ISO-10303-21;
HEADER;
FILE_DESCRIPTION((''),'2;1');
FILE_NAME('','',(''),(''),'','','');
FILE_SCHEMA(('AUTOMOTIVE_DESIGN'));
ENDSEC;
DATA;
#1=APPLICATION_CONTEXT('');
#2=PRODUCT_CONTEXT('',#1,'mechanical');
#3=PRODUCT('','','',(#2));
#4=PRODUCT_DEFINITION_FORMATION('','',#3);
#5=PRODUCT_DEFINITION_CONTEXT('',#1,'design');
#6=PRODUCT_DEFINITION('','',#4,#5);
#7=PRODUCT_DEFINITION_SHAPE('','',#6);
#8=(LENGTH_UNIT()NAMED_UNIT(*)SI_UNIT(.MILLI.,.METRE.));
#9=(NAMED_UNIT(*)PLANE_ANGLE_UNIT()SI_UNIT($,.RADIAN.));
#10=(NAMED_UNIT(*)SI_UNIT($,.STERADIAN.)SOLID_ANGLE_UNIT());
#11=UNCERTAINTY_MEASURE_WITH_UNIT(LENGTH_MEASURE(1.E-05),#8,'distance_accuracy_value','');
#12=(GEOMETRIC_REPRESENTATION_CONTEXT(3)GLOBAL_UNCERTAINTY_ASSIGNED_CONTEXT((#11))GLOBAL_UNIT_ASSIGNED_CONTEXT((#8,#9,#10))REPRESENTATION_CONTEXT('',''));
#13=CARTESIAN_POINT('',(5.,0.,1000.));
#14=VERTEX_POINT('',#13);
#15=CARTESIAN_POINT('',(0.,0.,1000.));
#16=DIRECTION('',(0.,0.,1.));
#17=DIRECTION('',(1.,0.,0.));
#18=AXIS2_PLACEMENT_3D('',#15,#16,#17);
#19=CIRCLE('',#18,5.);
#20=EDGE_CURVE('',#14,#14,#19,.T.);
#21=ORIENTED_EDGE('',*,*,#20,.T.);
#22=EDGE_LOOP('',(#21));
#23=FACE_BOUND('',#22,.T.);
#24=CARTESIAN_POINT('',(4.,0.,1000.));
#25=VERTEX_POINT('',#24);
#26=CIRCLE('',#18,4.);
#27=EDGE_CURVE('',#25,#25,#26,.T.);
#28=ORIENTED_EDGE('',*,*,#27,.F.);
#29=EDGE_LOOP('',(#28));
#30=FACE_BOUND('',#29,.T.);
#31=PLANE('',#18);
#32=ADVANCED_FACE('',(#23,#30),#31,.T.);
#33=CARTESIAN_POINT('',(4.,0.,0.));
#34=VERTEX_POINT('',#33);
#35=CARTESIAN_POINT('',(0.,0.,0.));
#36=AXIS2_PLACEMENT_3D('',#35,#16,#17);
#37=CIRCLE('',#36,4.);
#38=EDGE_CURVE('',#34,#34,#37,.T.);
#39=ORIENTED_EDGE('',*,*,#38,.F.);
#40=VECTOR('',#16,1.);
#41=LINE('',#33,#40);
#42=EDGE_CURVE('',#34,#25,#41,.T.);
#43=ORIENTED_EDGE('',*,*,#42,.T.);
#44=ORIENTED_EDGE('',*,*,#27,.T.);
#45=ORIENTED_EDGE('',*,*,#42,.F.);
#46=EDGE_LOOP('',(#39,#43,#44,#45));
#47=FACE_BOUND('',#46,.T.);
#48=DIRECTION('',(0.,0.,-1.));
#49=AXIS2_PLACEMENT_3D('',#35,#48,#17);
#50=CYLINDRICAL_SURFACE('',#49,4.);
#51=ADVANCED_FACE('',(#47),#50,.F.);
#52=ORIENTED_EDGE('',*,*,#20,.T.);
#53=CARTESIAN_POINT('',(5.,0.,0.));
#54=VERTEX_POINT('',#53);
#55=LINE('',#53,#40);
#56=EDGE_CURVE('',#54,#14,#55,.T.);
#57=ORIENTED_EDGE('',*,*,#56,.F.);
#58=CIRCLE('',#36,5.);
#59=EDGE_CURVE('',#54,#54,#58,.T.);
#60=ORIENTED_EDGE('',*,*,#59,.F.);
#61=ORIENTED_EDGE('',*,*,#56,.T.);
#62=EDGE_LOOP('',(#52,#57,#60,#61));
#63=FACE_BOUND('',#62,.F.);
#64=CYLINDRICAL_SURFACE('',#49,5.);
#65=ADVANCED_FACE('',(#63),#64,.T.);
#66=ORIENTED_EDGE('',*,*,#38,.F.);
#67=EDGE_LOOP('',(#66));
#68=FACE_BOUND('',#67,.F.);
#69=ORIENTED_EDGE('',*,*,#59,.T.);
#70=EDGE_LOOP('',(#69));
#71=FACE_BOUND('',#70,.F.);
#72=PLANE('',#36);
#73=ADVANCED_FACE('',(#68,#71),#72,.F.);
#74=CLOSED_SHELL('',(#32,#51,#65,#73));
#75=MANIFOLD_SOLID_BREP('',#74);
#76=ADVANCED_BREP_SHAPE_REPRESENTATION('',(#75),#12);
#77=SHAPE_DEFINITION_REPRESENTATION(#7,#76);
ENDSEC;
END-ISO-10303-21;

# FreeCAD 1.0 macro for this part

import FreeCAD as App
import Part
import Sketcher

V = App.Vector
Q = App.Units.Quantity

doc = App.newDocument("Part")
body = doc.addObject("PartDesign::Body", "Body")

sketch1 = body.newObject("Sketcher::SketchObject", "Sketch")
sketch1.AttachmentSupport = (doc.getObject("XY_Plane"), [""])
sketch1.MapMode = "FlatFace"
sketch1.addGeometry(Part.Circle(V(0, 0, 0), V(0, 0, 1), 5), False)
sketch1.addGeometry(Part.Circle(V(0, 0, 0), V(0, 0, 1), 4), False)
sketch1.addConstraint(Sketcher.Constraint("Coincident", 0, 3, -1, 1))
sketch1.addConstraint(Sketcher.Constraint("Coincident", 1, 3, -1, 1))
sketch1.addConstraint(Sketcher.Constraint("Diameter", 0, Q("10 mm")))
sketch1.addConstraint(Sketcher.Constraint("Diameter", 1, Q("8 mm")))
pad1 = body.newObject("PartDesign::Pad", "Pad")
pad1.Profile = sketch1
pad1.Length = 1000

doc.recompute()
